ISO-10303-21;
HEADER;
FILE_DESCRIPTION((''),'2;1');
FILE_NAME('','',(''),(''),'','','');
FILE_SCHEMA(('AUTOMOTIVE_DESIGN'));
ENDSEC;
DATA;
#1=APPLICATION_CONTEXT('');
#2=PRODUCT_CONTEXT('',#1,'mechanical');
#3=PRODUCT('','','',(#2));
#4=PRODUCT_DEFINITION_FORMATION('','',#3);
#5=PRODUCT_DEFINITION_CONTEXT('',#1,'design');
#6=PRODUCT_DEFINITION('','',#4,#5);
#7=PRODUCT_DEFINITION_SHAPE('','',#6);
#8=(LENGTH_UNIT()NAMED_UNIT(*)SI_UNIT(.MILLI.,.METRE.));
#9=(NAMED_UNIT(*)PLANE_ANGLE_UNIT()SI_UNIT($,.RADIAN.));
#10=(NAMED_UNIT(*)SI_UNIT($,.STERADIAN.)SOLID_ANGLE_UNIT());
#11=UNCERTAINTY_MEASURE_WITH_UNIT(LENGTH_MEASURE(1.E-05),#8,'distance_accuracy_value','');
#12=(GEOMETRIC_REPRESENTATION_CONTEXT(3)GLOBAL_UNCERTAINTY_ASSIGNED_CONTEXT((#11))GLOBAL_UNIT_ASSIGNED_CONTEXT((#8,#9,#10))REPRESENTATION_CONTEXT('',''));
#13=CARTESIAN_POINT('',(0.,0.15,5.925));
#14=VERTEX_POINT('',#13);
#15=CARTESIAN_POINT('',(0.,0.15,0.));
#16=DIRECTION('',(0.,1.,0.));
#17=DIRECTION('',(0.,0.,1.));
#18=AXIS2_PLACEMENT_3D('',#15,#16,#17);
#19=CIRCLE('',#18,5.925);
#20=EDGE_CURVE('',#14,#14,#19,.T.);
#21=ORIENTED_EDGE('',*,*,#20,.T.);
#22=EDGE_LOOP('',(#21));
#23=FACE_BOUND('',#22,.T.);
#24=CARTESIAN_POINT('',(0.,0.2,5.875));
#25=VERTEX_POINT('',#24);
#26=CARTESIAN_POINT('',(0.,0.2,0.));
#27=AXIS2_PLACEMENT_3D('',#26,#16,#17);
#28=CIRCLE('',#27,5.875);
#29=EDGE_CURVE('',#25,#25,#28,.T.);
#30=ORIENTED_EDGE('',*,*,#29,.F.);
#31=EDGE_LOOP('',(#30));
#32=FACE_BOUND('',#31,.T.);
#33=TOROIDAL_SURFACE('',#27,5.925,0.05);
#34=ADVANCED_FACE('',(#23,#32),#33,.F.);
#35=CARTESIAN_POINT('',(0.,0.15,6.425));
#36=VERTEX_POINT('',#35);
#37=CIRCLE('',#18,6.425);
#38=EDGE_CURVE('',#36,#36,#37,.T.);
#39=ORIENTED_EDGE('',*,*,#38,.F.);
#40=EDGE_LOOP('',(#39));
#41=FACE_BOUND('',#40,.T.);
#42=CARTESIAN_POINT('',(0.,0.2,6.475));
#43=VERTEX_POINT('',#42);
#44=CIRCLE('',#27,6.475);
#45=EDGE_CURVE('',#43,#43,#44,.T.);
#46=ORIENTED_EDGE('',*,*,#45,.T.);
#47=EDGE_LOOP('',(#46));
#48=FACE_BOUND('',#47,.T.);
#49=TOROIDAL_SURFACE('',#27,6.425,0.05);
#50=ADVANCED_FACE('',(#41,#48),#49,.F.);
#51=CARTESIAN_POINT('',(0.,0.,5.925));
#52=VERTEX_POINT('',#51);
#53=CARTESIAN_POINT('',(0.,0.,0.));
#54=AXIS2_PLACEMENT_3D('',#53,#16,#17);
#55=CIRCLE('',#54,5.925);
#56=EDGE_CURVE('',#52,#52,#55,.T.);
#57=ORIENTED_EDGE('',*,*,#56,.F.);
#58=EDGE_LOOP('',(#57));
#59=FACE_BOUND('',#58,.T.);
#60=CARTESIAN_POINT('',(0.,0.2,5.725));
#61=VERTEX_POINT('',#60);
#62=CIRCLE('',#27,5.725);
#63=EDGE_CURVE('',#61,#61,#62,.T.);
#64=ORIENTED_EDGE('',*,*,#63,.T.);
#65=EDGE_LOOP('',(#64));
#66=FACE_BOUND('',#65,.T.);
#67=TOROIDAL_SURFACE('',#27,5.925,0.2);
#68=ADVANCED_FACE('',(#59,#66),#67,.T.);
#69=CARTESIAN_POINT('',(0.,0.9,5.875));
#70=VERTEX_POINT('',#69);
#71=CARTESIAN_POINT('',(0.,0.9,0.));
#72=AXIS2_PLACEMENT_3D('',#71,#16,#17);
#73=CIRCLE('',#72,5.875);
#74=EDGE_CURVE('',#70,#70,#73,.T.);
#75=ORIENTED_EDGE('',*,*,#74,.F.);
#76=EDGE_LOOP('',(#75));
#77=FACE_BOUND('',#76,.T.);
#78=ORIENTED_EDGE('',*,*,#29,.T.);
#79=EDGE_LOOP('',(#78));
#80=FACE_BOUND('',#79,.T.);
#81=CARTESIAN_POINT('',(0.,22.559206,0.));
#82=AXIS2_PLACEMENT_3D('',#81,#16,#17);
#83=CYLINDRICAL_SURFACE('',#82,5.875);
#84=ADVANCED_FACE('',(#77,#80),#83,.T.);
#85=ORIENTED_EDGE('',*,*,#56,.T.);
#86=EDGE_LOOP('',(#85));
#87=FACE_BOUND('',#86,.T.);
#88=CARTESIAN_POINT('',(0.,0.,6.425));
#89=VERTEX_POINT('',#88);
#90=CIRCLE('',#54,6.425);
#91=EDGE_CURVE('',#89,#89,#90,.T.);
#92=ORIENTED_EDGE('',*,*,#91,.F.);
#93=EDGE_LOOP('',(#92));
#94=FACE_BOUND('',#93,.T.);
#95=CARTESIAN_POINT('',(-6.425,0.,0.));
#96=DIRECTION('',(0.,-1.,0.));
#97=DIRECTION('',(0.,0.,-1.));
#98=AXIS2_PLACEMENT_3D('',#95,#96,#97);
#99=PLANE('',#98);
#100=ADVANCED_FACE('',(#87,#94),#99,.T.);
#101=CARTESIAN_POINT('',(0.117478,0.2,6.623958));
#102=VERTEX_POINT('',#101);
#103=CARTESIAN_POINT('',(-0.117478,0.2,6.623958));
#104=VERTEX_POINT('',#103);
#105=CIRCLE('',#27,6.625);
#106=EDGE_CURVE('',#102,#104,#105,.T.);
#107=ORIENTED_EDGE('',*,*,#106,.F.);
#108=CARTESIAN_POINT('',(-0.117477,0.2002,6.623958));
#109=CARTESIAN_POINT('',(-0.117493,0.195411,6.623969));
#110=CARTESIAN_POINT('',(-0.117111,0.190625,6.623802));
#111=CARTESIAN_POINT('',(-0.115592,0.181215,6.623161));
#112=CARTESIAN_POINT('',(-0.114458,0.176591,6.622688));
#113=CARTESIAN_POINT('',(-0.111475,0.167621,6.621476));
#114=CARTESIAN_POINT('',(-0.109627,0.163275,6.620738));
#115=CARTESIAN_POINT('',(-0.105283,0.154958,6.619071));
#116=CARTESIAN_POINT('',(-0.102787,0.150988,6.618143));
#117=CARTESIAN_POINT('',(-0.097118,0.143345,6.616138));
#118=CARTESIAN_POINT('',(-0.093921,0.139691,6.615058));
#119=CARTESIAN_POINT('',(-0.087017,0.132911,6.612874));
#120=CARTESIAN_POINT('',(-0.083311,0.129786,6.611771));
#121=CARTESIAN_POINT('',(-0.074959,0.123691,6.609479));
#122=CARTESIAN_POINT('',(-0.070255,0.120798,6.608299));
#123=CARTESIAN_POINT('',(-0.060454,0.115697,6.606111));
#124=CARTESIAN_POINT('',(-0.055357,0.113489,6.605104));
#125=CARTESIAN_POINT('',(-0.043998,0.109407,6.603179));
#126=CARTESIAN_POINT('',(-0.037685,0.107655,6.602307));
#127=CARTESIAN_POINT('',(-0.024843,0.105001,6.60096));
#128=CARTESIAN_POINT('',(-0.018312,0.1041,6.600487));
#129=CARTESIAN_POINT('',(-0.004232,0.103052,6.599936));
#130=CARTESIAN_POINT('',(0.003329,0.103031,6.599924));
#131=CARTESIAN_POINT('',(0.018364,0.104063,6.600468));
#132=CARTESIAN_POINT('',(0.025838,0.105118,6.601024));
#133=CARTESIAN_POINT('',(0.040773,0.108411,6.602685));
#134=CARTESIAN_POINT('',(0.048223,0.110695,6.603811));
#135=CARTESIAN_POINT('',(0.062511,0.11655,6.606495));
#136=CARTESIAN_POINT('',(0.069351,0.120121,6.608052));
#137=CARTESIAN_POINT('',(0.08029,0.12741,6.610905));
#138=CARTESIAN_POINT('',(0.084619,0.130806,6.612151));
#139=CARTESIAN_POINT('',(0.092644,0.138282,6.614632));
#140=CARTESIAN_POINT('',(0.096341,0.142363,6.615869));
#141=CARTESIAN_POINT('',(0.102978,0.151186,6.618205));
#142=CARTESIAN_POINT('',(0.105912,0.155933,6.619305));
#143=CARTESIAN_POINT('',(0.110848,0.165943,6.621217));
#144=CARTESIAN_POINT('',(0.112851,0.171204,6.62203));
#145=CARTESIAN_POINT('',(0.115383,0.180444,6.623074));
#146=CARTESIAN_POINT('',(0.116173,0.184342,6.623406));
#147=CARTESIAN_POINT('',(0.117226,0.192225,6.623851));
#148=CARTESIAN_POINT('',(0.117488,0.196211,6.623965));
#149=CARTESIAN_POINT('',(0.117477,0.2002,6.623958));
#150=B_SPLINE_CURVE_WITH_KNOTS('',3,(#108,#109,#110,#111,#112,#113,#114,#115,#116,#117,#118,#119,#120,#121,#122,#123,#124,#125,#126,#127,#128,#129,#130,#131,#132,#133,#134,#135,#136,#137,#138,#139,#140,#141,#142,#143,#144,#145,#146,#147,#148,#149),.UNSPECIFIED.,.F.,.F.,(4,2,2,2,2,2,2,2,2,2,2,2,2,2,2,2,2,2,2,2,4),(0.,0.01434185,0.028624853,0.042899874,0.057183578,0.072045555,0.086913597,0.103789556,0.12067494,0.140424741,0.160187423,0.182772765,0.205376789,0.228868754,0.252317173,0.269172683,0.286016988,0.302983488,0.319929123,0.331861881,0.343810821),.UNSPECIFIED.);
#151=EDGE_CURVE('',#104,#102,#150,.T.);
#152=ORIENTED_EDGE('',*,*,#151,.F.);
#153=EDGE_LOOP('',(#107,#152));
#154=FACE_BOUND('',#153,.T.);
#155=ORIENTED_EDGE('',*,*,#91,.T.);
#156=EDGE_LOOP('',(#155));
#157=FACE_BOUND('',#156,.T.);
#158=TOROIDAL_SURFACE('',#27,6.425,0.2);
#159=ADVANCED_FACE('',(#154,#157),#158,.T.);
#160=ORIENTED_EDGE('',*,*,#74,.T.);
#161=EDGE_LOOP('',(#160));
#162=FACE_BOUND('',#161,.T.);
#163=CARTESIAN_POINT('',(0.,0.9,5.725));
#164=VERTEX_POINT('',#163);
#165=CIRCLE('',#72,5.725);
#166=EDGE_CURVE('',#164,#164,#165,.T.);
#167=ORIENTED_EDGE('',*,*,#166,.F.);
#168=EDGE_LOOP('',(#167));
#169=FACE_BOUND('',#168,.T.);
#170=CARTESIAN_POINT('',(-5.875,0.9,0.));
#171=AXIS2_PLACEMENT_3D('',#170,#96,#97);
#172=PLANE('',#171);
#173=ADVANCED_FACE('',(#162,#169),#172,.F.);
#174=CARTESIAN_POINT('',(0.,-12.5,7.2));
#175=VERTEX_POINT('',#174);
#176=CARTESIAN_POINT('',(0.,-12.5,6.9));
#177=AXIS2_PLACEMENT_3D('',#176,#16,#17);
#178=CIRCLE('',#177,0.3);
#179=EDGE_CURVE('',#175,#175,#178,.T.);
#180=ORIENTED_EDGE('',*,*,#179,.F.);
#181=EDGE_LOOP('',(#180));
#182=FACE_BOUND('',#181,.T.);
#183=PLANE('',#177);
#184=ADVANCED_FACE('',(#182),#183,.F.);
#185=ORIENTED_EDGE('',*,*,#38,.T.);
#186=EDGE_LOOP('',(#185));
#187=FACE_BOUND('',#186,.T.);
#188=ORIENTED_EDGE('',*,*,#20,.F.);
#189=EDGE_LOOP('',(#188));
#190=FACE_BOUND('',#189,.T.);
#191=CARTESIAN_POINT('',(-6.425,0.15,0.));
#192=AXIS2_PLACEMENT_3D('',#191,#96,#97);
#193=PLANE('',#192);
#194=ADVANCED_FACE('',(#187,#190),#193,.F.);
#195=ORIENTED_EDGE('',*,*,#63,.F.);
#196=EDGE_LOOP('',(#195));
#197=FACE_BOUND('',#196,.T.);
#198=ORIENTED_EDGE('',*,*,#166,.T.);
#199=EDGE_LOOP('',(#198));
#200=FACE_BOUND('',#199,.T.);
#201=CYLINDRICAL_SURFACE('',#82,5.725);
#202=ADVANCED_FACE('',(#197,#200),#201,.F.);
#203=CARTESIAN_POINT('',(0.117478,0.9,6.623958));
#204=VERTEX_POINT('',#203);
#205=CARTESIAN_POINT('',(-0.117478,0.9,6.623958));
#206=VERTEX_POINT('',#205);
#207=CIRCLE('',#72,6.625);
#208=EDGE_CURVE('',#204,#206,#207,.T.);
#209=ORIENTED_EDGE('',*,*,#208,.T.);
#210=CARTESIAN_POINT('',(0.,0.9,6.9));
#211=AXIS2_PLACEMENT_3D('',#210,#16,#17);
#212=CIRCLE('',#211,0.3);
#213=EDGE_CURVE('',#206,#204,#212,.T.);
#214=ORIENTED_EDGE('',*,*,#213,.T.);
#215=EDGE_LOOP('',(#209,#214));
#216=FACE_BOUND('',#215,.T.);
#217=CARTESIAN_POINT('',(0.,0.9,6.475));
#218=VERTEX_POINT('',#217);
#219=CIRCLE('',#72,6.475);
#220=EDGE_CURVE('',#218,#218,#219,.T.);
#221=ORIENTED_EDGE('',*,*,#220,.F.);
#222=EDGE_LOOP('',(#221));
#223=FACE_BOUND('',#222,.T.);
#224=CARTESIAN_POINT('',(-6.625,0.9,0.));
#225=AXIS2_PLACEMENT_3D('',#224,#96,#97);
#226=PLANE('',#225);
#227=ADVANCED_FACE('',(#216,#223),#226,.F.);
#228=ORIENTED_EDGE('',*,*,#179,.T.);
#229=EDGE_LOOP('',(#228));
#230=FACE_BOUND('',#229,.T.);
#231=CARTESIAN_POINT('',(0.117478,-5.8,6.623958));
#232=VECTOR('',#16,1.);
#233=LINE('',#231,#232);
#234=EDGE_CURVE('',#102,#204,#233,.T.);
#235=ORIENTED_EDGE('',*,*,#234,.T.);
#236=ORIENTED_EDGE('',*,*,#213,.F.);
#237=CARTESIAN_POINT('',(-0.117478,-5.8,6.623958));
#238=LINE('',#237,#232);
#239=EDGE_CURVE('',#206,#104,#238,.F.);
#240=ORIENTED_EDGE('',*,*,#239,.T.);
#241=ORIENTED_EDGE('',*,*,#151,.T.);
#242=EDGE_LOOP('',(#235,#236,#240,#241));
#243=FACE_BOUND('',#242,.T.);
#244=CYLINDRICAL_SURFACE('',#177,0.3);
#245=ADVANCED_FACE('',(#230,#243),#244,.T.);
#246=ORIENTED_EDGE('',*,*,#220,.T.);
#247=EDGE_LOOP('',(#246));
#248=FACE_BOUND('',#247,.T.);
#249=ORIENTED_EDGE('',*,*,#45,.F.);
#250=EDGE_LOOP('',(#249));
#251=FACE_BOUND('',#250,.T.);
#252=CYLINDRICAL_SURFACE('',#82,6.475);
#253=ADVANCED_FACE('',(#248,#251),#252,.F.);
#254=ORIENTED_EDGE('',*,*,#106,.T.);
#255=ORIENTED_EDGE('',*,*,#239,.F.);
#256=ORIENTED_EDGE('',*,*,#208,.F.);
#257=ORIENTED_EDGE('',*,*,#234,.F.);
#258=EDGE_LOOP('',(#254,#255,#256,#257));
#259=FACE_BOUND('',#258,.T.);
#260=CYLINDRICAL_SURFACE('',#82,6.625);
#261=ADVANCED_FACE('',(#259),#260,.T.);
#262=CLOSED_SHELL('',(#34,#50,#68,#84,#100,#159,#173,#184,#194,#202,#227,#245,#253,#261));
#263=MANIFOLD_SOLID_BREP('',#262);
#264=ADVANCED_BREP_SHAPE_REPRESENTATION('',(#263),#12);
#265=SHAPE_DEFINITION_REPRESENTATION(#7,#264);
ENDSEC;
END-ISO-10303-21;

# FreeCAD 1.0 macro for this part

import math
import FreeCAD as App
import Part
import Sketcher
Q = App.Units.Quantity

doc = App.newDocument("Part")
body = doc.addObject("PartDesign::Body", "Body")

sketch1 = body.newObject("Sketcher::SketchObject", "Sketch")
sketch1.AttachmentSupport = (doc.getObject("XY_Plane"), [""])
sketch1.MapMode = "FlatFace"
sketch1.addGeometry(Part.LineSegment(App.Vector(-6.625, 0.9, 0), App.Vector(-6.625, 0.2, 0)), False)
sketch1.addGeometry(Part.ArcOfCircle(Part.Circle(App.Vector(-6.425, 0.2, 0), App.Vector(0, 0, 1), 0.2), math.radians(-180), math.radians(-90)), False)
sketch1.addGeometry(Part.LineSegment(App.Vector(-6.425, 0, 0), App.Vector(-5.925, 0, 0)), False)
sketch1.addGeometry(Part.ArcOfCircle(Part.Circle(App.Vector(-5.925, 0.2, 0), App.Vector(0, 0, 1), 0.2), math.radians(-90), math.radians(0)), False)
sketch1.addGeometry(Part.LineSegment(App.Vector(-5.725, 0.2, 0), App.Vector(-5.725, 0.9, 0)), False)
sketch1.addGeometry(Part.LineSegment(App.Vector(-5.725, 0.9, 0), App.Vector(-5.875, 0.9, 0)), False)
sketch1.addGeometry(Part.LineSegment(App.Vector(-5.875, 0.9, 0), App.Vector(-5.875, 0.2, 0)), False)
sketch1.addGeometry(Part.ArcOfCircle(Part.Circle(App.Vector(-5.925, 0.2, 0), App.Vector(0, 0, 1), 0.05), math.radians(-90), math.radians(0)), False)
sketch1.addGeometry(Part.LineSegment(App.Vector(-5.925, 0.15, 0), App.Vector(-6.425, 0.15, 0)), False)
sketch1.addGeometry(Part.ArcOfCircle(Part.Circle(App.Vector(-6.425, 0.2, 0), App.Vector(0, 0, 1), 0.05), math.radians(180), math.radians(270)), False)
sketch1.addGeometry(Part.LineSegment(App.Vector(-6.475, 0.2, 0), App.Vector(-6.475, 0.9, 0)), False)
sketch1.addGeometry(Part.LineSegment(App.Vector(-6.475, 0.9, 0), App.Vector(-6.625, 0.9, 0)), False)
sketch1.addConstraint(Sketcher.Constraint("Tangent", 0, 2, 1, 1))
sketch1.addConstraint(Sketcher.Constraint("Tangent", 1, 2, 2, 1))
sketch1.addConstraint(Sketcher.Constraint("Tangent", 2, 2, 3, 1))
sketch1.addConstraint(Sketcher.Constraint("Tangent", 3, 2, 4, 1))
sketch1.addConstraint(Sketcher.Constraint("Coincident", 4, 2, 5, 1))
sketch1.addConstraint(Sketcher.Constraint("Coincident", 5, 2, 6, 1))
sketch1.addConstraint(Sketcher.Constraint("Tangent", 6, 2, 7, 2))
sketch1.addConstraint(Sketcher.Constraint("Tangent", 7, 1, 8, 1))
sketch1.addConstraint(Sketcher.Constraint("Tangent", 8, 2, 9, 2))
sketch1.addConstraint(Sketcher.Constraint("Tangent", 9, 1, 10, 1))
sketch1.addConstraint(Sketcher.Constraint("Coincident", 10, 2, 11, 1))
sketch1.addConstraint(Sketcher.Constraint("Coincident", 11, 2, 0, 1))
sketch1.addConstraint(Sketcher.Constraint("Vertical", 0))
sketch1.addConstraint(Sketcher.Constraint("Horizontal", 2))
sketch1.addConstraint(Sketcher.Constraint("Vertical", 4))
sketch1.addConstraint(Sketcher.Constraint("Horizontal", 5))
sketch1.addConstraint(Sketcher.Constraint("Vertical", 6))
sketch1.addConstraint(Sketcher.Constraint("Horizontal", 8))
sketch1.addConstraint(Sketcher.Constraint("Vertical", 10))
sketch1.addConstraint(Sketcher.Constraint("Horizontal", 11))
sketch1.addConstraint(Sketcher.Constraint("Coincident", 7, 3, 3, 3))
sketch1.addConstraint(Sketcher.Constraint("Coincident", 9, 3, 1, 3))
sketch1.addConstraint(Sketcher.Constraint("Equal", 1, 3))
sketch1.addConstraint(Sketcher.Constraint("PointOnObject", 1, 2, -1))
sketch1.addConstraint(Sketcher.Constraint("Horizontal", 5, 2, 10, 2))
sketch1.addConstraint(Sketcher.Constraint("Radius", 1, Q("0.2 mm")))
sketch1.addConstraint(Sketcher.Constraint("Radius", 7, Q("0.05 mm")))
sketch1.addConstraint(Sketcher.Constraint("DistanceX", 2, 1, 2, 2, Q("0.5 mm")))
sketch1.addConstraint(Sketcher.Constraint("DistanceY", 0, 2, 0, 1, Q("0.7 mm")))
sketch1.addConstraint(Sketcher.Constraint("DistanceX", 1, 3, -1, 1, Q("6.425 mm")))
revolution = body.newObject("PartDesign::Revolution", "Revolution")
revolution.Profile = sketch1
revolution.ReferenceAxis = (sketch1, ["V_Axis"])
revolution.Angle = 360

sketch2 = body.newObject("Sketcher::SketchObject", "Sketch001")
sketch2.AttachmentSupport = (doc.getObject("XZ_Plane"), [""])
sketch2.MapMode = "FlatFace"
sketch2.addGeometry(Part.Circle(App.Vector(0, 6.9, 0), App.Vector(0, 0, 1), 0.3), False)
sketch2.addConstraint(Sketcher.Constraint("PointOnObject", 0, 3, -2))
sketch2.addConstraint(Sketcher.Constraint("Diameter", 0, Q("0.6 mm")))
sketch2.addConstraint(Sketcher.Constraint("DistanceY", -1, 1, 0, 3, Q("6.9 mm")))
pad1 = body.newObject("PartDesign::Pad", "Pad")
pad1.Profile = sketch2
pad1.Type = "TwoLengths"
pad1.Length = 0.9
pad1.Length2 = 12.5
pad1.Reversed = True

doc.recompute()
